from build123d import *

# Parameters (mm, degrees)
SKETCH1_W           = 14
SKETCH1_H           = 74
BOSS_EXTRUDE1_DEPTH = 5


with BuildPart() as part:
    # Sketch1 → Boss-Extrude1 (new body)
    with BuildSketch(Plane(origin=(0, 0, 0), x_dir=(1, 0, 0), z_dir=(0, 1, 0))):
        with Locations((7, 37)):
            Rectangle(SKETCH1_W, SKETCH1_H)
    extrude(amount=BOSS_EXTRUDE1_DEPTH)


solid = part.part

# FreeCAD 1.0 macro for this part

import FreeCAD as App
import Part
import Sketcher

doc = App.newDocument("Part")
body = doc.addObject("PartDesign::Body", "Body")

# Sketch on XZ plane
sketch1 = doc.addObject("Sketcher::SketchObject", "Sketch")
body.addObject(sketch1)
sketch1.AttachmentSupport = (doc.XZ_Plane, [""])
sketch1.MapMode = "FlatFace"
sketch1.addGeometry(Part.LineSegment(App.Vector(0, -74, 0), App.Vector(0, 0, 0)), False)
sketch1.addGeometry(Part.LineSegment(App.Vector(0, 0, 0), App.Vector(14, 0, 0)), False)
sketch1.addGeometry(Part.LineSegment(App.Vector(14, 0, 0), App.Vector(14, -74, 0)), False)
sketch1.addGeometry(Part.LineSegment(App.Vector(14, -74, 0), App.Vector(0, -74, 0)), False)
sketch1.addConstraint(Sketcher.Constraint("Coincident", 0, 2, 1, 1))
sketch1.addConstraint(Sketcher.Constraint("Coincident", 1, 2, 2, 1))
sketch1.addConstraint(Sketcher.Constraint("Coincident", 2, 2, 3, 1))
sketch1.addConstraint(Sketcher.Constraint("Coincident", 3, 2, 0, 1))
sketch1.addConstraint(Sketcher.Constraint("Vertical", 0))
sketch1.addConstraint(Sketcher.Constraint("Horizontal", 1))
sketch1.addConstraint(Sketcher.Constraint("Vertical", 2))
sketch1.addConstraint(Sketcher.Constraint("Horizontal", 3))
sketch1.addConstraint(Sketcher.Constraint("Coincident", 0, 2, -1, 1))
sketch1.addConstraint(Sketcher.Constraint("DistanceX", 1, 1, 1, 2, 14.0))
sketch1.addConstraint(Sketcher.Constraint("DistanceY", 0, 1, 0, 2, 74.0))
pad1 = doc.addObject("PartDesign::Pad", "Pad")
body.addObject(pad1)
pad1.Profile = sketch1
pad1.Length = 5
pad1.Reversed = True

doc.recompute()
